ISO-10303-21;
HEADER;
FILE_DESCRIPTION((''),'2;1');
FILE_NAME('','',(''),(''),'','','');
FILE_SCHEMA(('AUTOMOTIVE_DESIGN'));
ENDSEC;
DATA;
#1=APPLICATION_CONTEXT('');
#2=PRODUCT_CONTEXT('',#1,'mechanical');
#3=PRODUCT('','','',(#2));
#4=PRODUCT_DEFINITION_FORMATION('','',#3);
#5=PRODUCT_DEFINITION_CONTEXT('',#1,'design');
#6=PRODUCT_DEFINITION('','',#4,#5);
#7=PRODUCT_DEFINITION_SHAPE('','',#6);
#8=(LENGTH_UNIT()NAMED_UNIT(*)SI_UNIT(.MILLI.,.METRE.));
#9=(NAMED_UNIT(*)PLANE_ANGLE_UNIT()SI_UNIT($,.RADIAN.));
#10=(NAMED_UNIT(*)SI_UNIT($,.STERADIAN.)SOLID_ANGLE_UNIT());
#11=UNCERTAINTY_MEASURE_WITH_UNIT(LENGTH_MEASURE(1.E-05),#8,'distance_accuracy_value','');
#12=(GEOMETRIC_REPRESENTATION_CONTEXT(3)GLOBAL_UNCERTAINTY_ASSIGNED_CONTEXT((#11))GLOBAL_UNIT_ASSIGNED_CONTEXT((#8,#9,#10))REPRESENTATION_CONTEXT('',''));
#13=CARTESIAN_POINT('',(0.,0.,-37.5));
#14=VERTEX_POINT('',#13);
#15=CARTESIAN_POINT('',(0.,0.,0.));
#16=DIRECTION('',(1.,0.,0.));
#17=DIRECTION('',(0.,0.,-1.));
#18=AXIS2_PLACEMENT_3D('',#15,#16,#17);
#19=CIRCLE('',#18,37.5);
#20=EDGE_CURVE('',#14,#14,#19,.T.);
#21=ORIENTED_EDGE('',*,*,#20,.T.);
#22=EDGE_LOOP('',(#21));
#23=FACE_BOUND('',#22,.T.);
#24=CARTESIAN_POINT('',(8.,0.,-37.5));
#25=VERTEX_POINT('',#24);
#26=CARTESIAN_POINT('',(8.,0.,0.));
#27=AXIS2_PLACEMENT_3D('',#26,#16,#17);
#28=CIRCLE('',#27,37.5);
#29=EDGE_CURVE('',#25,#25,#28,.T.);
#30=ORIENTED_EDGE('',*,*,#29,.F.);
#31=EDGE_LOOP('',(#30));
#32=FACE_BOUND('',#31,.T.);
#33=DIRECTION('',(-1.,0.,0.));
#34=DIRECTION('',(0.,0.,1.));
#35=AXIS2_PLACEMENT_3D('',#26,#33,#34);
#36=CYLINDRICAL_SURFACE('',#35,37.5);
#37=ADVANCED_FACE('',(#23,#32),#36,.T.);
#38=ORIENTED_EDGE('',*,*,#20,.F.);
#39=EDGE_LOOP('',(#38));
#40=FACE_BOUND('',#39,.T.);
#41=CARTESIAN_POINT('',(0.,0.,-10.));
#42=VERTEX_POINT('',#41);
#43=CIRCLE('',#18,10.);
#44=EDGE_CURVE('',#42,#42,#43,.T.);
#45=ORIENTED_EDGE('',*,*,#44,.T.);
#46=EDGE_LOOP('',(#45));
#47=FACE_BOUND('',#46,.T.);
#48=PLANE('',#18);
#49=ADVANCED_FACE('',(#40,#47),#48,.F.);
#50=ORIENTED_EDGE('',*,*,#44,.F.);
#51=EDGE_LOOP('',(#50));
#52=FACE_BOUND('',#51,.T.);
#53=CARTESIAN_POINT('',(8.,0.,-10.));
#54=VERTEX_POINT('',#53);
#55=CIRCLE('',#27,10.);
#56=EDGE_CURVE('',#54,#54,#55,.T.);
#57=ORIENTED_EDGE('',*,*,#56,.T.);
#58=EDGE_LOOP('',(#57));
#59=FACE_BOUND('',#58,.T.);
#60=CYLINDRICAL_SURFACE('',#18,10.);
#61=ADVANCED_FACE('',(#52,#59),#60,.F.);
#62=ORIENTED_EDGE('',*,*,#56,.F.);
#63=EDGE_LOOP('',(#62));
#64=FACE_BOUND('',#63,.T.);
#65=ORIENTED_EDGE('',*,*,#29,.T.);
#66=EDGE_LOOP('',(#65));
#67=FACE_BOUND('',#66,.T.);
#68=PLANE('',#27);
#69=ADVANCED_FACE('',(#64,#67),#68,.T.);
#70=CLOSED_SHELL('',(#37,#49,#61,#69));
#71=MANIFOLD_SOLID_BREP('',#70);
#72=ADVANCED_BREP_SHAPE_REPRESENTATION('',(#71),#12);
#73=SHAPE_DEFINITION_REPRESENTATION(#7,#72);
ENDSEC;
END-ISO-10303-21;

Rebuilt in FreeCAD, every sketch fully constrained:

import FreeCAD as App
import Part
import Sketcher

V = App.Vector
Q = App.Units.Quantity

doc = App.newDocument("Part")
body = doc.addObject("PartDesign::Body", "Body")

sketch1 = body.newObject("Sketcher::SketchObject", "Sketch")
sketch1.AttachmentSupport = (doc.getObject("YZ_Plane"), [""])
sketch1.MapMode = "FlatFace"
sketch1.addGeometry(Part.Circle(V(0, 0, 0), V(0, 0, 1), 37.5), False)
sketch1.addConstraint(Sketcher.Constraint("Coincident", 0, 3, -1, 1))
sketch1.addConstraint(Sketcher.Constraint("Diameter", 0, Q("75 mm")))
pad1 = body.newObject("PartDesign::Pad", "Pad")
pad1.Profile = sketch1
pad1.Length = 8

sketch2 = body.newObject("Sketcher::SketchObject", "Sketch001")
sketch2.AttachmentSupport = (doc.getObject("YZ_Plane"), [""])
sketch2.MapMode = "FlatFace"
sketch2.AttachmentOffset = App.Placement(V(0, 0, 8), App.Rotation())
sketch2.addGeometry(Part.Circle(V(0, 0, 0), V(0, 0, 1), 10), False)
sketch2.addConstraint(Sketcher.Constraint("Coincident", 0, 3, -1, 1))
sketch2.addConstraint(Sketcher.Constraint("Diameter", 0, Q("20 mm")))
pocket1 = body.newObject("PartDesign::Pocket", "Pocket")
pocket1.Profile = sketch2
pocket1.Type = "ThroughAll"

doc.recompute()
